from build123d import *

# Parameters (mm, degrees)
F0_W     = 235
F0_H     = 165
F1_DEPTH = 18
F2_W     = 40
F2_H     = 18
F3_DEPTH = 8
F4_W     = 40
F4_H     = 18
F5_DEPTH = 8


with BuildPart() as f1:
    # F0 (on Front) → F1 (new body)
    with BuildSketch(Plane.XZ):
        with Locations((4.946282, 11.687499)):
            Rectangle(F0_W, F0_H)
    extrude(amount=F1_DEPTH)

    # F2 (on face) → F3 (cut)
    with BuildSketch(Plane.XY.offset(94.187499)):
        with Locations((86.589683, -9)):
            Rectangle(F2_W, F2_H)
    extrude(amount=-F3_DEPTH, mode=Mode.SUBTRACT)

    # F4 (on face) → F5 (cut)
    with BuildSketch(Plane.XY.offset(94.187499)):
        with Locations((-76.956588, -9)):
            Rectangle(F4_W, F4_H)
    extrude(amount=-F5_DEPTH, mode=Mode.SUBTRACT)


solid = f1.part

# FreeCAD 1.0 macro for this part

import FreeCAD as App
import Part
import Sketcher
from FreeCAD import Vector


def add_polygon(sketch, points):
    """Adds a closed chain of lines whose ends are joined by coincident constraints."""
    first, n = sketch.GeometryCount, len(points)
    for a, b in zip(points, points[1:] + points[:1]):
        sketch.addGeometry(Part.LineSegment(App.Vector(*a, 0), App.Vector(*b, 0)), False)
    for i in range(n):
        sketch.addConstraint(Sketcher.Constraint("Coincident", first + i, 2, first + (i + 1) % n, 1))

doc = App.newDocument("Part")
body = doc.addObject("PartDesign::Body", "Body")

sketch1 = body.newObject("Sketcher::SketchObject", "Sketch")
sketch1.AttachmentSupport = (doc.getObject("XZ_Plane"), [""])
sketch1.MapMode = "FlatFace"
add_polygon(sketch1, [(-113, 94), (-113, -71), (122, -71), (122, 94)])
sketch1.addConstraint([
    Sketcher.Constraint("Vertical", 0),
    Sketcher.Constraint("Horizontal", 1),
    Sketcher.Constraint("Vertical", 2),
    Sketcher.Constraint("Horizontal", 3),
    Sketcher.Constraint("DistanceX", 1, 1, 1, 2, 235.0),
    Sketcher.Constraint("DistanceY", 0, 2, 0, 1, 165.0),
    Sketcher.Constraint("DistanceY", 0, 2, -1, 1, 70.812501),
    Sketcher.Constraint("DistanceX", 0, 2, -1, 1, 112.553718),
])
pad1 = body.newObject("PartDesign::Pad", "Pad")
pad1.Profile = sketch1
pad1.Length = 18

sketch2 = body.newObject("Sketcher::SketchObject", "Sketch001")
sketch2.AttachmentSupport = (doc.getObject("XY_Plane"), [""])
sketch2.MapMode = "FlatFace"
sketch2.AttachmentOffset = App.Placement(Vector(0, 0, 94.187499), App.Rotation())
add_polygon(sketch2, [(67, 0), (67, -18), (107, -18), (107, 0)])
sketch2.addConstraint([
    Sketcher.Constraint("Vertical", 0),
    Sketcher.Constraint("Horizontal", 1),
    Sketcher.Constraint("Vertical", 2),
    Sketcher.Constraint("Horizontal", 3),
    Sketcher.Constraint("PointOnObject", 2, 2, -1),
    Sketcher.Constraint("DistanceX", 1, 1, 1, 2, 40.0),
    Sketcher.Constraint("DistanceY", 0, 2, 0, 1, 18.0),
    Sketcher.Constraint("DistanceX", -1, 1, 0, 2, 66.589683),
])
pocket1 = body.newObject("PartDesign::Pocket", "Pocket")
pocket1.Profile = sketch2
pocket1.Length = 8

sketch3 = body.newObject("Sketcher::SketchObject", "Sketch002")
sketch3.AttachmentSupport = (doc.getObject("XY_Plane"), [""])
sketch3.MapMode = "FlatFace"
sketch3.AttachmentOffset = App.Placement(Vector(0, 0, 94.187499), App.Rotation())
add_polygon(sketch3, [(-97, 0), (-97, -18), (-57, -18), (-57, 0)])
sketch3.addConstraint([
    Sketcher.Constraint("Vertical", 0),
    Sketcher.Constraint("Horizontal", 1),
    Sketcher.Constraint("Vertical", 2),
    Sketcher.Constraint("Horizontal", 3),
    Sketcher.Constraint("PointOnObject", 2, 2, -1),
    Sketcher.Constraint("DistanceX", 1, 1, 1, 2, 40.0),
    Sketcher.Constraint("DistanceY", 0, 2, 0, 1, 18.0),
    Sketcher.Constraint("DistanceX", 1, 2, -1, 1, 56.956588),
])
pocket2 = body.newObject("PartDesign::Pocket", "Pocket001")
pocket2.Profile = sketch3
pocket2.Length = 8

doc.recompute()
